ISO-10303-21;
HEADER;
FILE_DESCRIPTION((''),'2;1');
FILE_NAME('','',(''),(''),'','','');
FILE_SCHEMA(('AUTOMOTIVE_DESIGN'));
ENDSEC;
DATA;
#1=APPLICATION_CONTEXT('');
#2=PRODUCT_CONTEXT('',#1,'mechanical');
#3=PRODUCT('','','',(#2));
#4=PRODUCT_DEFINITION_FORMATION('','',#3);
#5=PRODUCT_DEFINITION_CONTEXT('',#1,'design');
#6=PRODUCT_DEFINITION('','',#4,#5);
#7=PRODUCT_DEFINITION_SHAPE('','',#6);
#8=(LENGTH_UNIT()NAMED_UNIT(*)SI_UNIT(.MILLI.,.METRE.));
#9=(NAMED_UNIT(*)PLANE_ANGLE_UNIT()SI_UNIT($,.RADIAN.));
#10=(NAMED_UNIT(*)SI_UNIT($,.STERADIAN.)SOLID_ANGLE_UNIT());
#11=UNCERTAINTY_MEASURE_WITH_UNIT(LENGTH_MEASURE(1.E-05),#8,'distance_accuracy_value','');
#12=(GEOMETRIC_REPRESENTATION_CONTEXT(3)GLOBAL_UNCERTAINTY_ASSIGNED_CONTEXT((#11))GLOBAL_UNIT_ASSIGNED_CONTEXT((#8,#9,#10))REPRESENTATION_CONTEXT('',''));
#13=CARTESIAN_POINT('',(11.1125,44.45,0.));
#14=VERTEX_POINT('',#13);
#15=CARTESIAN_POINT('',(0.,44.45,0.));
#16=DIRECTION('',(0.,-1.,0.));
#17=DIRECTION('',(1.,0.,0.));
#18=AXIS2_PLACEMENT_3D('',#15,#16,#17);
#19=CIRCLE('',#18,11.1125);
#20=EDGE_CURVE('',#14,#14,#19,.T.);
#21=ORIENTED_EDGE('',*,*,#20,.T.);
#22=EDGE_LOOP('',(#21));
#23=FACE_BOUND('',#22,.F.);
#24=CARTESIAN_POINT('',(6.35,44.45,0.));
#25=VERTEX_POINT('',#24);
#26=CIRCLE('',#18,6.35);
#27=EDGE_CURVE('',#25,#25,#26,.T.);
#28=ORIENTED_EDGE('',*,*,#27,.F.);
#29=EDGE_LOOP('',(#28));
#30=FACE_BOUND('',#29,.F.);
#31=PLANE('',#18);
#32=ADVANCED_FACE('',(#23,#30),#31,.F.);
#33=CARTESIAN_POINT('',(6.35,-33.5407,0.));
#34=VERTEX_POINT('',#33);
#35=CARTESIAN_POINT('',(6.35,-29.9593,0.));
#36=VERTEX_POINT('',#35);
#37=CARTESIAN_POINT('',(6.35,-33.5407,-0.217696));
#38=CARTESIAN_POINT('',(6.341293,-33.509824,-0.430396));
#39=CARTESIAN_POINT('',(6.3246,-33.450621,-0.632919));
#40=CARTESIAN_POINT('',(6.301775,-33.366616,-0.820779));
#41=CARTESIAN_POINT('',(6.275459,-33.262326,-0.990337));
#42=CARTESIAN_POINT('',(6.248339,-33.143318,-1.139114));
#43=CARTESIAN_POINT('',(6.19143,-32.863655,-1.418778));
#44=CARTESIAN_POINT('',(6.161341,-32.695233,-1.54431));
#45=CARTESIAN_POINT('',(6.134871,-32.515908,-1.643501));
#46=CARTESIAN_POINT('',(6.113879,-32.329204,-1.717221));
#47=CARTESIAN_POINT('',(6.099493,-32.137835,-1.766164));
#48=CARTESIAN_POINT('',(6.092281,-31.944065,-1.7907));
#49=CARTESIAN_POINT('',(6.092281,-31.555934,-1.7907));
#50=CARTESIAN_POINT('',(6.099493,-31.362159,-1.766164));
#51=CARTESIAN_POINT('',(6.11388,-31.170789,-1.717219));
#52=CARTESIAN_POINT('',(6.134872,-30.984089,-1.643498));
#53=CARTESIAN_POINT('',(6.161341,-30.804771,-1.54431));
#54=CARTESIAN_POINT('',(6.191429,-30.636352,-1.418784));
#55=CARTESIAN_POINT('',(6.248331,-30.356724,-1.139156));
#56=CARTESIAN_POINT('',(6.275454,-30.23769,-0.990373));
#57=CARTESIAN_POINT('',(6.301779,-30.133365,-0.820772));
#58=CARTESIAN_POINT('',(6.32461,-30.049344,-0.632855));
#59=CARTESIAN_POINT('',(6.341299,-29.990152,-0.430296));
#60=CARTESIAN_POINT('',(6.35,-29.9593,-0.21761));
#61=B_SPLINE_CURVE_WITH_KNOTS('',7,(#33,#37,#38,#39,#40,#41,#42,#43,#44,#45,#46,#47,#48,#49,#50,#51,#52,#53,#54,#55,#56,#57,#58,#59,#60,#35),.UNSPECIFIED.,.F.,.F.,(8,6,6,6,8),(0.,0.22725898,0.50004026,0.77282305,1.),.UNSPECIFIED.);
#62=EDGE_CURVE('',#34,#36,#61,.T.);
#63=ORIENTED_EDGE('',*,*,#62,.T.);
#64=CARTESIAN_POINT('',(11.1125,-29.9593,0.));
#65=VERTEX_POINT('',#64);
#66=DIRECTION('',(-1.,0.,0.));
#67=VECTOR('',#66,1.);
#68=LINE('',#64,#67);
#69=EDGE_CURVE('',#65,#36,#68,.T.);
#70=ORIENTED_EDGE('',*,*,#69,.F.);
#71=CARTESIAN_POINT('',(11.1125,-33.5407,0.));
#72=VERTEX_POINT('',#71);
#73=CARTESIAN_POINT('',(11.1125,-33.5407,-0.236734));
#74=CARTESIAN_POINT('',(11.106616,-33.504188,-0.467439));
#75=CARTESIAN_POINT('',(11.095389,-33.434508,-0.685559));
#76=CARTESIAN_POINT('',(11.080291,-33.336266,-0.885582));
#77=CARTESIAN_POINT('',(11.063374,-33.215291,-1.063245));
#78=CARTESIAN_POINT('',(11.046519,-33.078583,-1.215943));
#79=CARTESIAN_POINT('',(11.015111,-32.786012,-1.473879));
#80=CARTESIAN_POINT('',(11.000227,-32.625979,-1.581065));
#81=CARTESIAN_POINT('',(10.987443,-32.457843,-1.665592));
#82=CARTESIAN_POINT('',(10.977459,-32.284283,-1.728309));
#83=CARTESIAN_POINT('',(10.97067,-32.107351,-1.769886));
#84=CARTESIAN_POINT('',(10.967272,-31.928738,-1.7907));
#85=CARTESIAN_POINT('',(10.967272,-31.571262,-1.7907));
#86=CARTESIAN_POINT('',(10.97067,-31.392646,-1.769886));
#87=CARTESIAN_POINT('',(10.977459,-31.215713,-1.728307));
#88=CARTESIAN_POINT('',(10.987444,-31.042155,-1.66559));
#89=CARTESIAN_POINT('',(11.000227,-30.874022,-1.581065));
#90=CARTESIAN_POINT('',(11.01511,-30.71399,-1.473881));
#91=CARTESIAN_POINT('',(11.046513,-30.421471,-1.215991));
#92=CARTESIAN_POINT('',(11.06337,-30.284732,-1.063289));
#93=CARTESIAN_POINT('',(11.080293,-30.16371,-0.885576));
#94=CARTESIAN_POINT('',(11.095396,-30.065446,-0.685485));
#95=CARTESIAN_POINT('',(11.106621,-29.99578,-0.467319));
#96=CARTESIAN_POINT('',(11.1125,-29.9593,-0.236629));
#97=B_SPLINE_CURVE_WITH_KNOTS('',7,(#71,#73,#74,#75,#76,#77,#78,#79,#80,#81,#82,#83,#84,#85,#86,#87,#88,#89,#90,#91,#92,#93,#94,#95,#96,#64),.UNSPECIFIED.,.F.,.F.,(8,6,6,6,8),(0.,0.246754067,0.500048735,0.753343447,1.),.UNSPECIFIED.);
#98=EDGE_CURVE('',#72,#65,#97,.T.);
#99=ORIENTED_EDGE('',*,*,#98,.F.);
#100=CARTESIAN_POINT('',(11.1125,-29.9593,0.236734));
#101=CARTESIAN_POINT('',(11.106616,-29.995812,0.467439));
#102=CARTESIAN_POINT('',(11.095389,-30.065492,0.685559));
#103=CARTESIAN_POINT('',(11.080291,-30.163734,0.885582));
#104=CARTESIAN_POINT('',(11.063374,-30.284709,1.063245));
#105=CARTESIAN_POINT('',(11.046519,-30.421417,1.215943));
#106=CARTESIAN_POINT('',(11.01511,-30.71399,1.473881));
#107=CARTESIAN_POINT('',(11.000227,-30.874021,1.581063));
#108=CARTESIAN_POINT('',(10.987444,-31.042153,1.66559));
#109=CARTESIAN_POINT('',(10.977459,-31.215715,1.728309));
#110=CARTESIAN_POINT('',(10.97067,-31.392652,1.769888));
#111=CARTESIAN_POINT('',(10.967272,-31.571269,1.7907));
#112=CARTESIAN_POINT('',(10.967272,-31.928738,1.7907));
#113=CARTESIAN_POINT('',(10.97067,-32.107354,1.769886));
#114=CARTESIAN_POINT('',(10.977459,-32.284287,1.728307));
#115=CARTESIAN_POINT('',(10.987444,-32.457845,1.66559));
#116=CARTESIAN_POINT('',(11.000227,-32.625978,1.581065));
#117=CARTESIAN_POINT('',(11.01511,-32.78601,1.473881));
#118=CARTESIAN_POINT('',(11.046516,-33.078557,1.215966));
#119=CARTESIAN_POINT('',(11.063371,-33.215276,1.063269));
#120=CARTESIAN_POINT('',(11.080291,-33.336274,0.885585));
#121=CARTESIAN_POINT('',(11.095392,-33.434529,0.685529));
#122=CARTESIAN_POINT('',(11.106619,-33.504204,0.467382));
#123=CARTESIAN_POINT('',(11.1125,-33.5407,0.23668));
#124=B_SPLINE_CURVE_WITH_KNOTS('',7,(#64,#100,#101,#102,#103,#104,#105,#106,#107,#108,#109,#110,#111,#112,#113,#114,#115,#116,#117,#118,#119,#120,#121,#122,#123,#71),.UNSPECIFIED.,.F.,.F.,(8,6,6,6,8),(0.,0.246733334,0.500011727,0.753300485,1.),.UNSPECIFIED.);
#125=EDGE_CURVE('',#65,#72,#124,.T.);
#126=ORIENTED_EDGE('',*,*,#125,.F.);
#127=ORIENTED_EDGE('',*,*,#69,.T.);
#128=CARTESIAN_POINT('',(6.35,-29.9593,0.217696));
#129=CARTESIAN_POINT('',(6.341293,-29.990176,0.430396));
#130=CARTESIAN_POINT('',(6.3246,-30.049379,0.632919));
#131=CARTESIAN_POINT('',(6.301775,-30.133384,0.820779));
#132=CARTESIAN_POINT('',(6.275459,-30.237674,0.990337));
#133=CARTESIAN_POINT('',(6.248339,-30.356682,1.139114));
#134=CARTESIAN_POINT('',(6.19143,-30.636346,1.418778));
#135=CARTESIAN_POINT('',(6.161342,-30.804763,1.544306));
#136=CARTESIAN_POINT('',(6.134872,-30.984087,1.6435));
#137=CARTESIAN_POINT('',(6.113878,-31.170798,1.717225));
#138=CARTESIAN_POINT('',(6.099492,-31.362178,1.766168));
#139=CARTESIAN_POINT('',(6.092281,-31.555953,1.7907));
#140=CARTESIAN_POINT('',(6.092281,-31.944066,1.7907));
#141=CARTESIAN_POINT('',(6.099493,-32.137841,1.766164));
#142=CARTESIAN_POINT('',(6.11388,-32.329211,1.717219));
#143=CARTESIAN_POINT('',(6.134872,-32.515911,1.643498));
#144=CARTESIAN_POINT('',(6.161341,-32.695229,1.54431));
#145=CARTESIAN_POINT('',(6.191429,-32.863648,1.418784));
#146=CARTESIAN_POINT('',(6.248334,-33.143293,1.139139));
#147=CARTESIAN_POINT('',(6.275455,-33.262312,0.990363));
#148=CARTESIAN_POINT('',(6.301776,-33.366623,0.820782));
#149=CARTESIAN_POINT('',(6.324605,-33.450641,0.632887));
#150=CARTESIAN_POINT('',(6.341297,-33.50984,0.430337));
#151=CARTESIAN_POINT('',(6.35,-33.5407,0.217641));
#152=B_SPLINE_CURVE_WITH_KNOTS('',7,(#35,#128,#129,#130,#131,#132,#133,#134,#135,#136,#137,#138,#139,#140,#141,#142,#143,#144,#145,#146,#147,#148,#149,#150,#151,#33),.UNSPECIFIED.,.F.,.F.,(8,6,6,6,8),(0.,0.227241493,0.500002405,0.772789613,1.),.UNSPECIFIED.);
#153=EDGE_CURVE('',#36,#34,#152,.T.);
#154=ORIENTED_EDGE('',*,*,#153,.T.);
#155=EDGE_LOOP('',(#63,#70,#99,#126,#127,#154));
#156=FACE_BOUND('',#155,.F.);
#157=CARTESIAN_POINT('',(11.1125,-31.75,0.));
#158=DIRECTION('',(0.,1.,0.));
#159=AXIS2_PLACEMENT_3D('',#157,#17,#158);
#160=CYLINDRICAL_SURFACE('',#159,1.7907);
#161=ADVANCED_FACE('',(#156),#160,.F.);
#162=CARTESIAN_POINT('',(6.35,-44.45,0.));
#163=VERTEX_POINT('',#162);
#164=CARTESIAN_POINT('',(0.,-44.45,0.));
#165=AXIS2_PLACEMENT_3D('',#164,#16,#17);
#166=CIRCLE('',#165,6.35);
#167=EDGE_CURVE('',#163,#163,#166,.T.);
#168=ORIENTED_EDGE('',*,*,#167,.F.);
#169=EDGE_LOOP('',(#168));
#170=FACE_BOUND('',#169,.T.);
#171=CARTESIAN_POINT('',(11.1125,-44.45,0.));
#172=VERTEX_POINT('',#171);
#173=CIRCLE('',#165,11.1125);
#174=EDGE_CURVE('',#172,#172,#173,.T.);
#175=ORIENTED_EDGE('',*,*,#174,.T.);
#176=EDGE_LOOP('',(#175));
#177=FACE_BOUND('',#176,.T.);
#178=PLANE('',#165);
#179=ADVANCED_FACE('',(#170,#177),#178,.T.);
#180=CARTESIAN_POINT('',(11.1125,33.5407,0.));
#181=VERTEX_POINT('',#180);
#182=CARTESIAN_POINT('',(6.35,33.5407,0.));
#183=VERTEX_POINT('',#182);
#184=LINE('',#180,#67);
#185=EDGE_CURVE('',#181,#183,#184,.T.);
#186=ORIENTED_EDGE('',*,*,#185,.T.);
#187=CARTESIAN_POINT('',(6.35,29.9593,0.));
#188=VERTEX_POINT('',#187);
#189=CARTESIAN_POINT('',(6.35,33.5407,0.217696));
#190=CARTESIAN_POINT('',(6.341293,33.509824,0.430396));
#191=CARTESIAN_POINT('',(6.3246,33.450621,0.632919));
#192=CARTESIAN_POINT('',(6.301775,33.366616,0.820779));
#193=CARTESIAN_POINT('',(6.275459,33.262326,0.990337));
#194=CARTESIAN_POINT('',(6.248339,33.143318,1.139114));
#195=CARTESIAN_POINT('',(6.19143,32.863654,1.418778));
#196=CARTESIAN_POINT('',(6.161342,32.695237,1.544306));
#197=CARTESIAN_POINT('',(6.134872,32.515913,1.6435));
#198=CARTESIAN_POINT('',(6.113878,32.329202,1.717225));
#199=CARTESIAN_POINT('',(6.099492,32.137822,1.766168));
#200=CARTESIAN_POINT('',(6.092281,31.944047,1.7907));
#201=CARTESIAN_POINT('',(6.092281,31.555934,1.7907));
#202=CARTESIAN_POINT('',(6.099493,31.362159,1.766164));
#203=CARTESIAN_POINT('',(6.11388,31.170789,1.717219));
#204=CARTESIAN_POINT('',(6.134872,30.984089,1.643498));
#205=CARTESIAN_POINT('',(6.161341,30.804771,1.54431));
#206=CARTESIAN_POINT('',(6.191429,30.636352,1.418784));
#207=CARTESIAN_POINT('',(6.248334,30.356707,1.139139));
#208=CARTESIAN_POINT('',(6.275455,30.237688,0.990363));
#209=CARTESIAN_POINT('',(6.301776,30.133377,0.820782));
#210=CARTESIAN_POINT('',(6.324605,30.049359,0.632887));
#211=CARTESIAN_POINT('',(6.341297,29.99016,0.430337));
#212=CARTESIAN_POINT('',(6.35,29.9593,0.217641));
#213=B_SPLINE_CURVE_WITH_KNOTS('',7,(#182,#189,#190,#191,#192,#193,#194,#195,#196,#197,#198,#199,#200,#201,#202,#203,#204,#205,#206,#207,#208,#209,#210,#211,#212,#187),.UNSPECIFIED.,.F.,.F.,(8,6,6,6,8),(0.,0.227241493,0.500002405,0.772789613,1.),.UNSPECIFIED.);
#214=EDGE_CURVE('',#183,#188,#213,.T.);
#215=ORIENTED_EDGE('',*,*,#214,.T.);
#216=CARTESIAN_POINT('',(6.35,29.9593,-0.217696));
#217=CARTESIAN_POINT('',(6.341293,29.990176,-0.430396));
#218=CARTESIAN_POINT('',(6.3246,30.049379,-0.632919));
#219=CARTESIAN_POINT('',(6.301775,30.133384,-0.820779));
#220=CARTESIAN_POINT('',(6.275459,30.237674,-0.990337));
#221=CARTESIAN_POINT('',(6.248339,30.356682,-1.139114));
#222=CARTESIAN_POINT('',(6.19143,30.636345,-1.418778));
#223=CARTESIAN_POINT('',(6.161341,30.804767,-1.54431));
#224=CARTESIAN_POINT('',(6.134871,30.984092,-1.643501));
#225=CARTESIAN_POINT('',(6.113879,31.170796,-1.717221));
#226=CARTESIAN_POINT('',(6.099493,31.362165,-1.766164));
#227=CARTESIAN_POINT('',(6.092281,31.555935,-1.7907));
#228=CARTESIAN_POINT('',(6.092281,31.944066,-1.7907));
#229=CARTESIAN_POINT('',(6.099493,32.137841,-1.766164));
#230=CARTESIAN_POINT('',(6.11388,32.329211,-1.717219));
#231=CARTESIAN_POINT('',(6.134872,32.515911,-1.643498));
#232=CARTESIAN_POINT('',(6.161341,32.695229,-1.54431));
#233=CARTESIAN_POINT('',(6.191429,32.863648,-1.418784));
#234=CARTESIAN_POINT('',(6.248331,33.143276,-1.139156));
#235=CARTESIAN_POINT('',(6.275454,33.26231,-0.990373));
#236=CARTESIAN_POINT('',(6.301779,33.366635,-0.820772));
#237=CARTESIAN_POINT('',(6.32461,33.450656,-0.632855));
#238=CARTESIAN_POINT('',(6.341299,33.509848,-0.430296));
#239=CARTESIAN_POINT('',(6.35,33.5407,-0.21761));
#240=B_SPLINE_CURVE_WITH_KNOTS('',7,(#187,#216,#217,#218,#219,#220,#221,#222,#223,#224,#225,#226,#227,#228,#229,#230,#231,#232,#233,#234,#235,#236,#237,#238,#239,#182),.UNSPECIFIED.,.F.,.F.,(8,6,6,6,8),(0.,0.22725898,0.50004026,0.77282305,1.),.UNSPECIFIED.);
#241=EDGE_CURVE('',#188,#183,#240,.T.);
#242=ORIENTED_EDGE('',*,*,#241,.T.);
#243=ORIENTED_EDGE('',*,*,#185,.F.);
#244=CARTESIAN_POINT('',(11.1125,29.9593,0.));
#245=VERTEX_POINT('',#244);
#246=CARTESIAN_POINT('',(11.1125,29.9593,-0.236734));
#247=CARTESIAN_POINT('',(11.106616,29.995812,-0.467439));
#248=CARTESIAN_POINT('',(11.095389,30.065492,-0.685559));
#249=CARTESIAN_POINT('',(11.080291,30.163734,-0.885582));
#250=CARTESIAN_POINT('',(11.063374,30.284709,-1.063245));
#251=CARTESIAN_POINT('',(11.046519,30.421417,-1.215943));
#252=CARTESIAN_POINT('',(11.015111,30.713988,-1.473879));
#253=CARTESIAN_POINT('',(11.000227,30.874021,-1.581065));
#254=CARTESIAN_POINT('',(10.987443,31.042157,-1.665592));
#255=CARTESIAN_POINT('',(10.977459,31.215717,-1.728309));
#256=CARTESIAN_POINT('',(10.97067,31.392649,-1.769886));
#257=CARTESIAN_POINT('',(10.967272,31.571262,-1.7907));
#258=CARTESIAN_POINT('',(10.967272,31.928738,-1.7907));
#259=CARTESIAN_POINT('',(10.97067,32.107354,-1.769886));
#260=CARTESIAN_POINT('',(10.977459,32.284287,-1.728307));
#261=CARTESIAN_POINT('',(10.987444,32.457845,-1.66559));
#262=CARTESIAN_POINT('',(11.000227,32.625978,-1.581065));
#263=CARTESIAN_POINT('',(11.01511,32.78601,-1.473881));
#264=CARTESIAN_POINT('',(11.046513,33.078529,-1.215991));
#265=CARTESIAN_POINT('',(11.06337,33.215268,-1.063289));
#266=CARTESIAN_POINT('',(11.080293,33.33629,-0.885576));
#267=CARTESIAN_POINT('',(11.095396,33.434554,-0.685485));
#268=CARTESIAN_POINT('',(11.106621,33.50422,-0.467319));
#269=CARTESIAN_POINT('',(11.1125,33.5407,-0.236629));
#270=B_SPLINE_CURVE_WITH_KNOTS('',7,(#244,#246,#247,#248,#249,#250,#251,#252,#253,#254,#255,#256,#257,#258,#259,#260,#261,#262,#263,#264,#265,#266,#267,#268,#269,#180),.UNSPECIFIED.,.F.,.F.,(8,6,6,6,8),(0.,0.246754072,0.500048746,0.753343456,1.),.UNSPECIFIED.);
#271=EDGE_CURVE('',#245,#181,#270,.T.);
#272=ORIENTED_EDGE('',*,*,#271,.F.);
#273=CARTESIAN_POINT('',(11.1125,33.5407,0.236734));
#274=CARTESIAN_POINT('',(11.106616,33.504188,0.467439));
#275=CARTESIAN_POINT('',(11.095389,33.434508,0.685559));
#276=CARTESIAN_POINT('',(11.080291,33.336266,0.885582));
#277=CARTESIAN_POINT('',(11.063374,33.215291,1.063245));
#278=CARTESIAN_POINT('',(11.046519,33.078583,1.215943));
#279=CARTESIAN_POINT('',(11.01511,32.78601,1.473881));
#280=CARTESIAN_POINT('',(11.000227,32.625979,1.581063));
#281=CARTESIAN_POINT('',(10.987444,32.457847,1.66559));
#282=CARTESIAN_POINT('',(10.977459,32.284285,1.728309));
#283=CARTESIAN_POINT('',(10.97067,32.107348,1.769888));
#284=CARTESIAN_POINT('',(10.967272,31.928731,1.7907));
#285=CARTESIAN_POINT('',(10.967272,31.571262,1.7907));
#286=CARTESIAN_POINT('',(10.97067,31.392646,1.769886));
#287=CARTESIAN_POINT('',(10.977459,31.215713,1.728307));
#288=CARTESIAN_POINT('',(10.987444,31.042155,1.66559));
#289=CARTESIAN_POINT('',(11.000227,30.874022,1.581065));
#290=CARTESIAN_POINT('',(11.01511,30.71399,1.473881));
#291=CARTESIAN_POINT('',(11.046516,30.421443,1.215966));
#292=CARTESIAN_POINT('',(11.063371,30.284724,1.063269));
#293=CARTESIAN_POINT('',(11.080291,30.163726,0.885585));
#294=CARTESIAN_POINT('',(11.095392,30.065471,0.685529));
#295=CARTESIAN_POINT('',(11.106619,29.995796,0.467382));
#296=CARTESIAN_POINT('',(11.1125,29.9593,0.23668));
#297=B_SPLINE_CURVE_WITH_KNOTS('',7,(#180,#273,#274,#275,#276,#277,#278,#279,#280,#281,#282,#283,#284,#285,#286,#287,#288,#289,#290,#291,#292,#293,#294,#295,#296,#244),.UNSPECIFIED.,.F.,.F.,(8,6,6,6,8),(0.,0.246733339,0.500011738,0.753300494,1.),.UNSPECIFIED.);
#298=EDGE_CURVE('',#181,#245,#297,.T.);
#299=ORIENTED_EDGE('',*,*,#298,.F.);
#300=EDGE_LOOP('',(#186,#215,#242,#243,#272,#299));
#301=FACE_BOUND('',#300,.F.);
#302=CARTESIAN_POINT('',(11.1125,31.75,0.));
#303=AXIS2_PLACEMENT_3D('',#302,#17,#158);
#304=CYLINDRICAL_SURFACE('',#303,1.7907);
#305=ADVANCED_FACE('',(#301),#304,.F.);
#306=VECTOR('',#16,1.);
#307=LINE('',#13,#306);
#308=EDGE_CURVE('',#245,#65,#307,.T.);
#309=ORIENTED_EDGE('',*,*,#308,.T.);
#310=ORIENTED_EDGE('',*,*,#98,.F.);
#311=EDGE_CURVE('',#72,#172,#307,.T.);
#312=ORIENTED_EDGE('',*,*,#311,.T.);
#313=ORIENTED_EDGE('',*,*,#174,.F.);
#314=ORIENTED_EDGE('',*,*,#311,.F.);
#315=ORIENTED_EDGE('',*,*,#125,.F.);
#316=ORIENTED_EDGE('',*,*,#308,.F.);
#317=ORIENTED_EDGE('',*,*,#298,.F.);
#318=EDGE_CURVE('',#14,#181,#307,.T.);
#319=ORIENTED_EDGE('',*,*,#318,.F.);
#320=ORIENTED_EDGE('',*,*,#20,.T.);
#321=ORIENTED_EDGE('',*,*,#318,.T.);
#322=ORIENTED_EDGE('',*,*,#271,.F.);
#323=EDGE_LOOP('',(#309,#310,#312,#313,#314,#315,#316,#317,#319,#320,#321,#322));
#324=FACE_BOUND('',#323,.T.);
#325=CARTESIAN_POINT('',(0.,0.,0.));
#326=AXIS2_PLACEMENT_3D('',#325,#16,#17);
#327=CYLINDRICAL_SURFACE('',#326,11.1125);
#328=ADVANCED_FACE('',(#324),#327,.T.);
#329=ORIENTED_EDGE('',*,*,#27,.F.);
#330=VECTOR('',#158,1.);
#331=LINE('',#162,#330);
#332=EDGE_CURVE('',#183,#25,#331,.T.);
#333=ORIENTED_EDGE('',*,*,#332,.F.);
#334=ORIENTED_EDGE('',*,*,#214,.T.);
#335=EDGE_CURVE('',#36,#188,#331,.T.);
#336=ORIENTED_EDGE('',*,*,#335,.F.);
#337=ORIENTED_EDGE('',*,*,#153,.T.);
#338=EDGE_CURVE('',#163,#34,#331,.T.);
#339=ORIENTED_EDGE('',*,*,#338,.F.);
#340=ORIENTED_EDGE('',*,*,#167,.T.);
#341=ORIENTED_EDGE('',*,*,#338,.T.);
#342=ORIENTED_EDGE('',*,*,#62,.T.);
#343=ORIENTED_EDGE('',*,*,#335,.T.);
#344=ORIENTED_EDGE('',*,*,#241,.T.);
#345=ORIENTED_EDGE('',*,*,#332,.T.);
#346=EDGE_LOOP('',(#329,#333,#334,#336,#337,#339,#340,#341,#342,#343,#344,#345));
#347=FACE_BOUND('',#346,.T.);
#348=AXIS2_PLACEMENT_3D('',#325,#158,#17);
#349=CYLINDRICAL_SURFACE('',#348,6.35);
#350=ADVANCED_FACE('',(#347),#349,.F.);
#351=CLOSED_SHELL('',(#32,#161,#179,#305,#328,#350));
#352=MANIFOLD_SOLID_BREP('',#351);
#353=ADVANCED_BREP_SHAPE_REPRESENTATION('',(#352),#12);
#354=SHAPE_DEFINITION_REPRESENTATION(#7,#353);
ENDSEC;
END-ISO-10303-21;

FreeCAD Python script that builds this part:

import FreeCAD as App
import Part
import Sketcher

V = App.Vector
Q = App.Units.Quantity

doc = App.newDocument("Part")
body = doc.addObject("PartDesign::Body", "Body")

# Sketch on XZ plane
sketch1 = doc.addObject("Sketcher::SketchObject", "Sketch")
body.addObject(sketch1)
sketch1.AttachmentSupport = (doc.XZ_Plane, [""])
sketch1.MapMode = "FlatFace"
sketch1.addGeometry([
    Part.Circle(V(0, 0, 0), V(0, 0, 1), 11),
    Part.Circle(V(0, 0, 0), V(0, 0, 1), 6),
], False)
sketch1.addConstraint([
    Sketcher.Constraint("Coincident", 0, 3, -1, 1),
    Sketcher.Constraint("Coincident", 1, 3, -1, 1),
    Sketcher.Constraint("Diameter", 1, Q("0.5 in")),
    Sketcher.Constraint("Diameter", 0, Q("0.875 in")),
])
pad1 = doc.addObject("PartDesign::Pad", "Pad")
body.addObject(pad1)
pad1.Profile = sketch1
pad1.Length = Q("3.5 in")
pad1.Midplane = True

# Sketch on YZ plane
sketch2 = doc.addObject("Sketcher::SketchObject", "Sketch001")
body.addObject(sketch2)
sketch2.AttachmentSupport = (doc.YZ_Plane, [""])
sketch2.MapMode = "FlatFace"
sketch2.AttachmentOffset = App.Placement(V(0, 0, 0.4375 * 25.4), App.Rotation())
sketch2.addGeometry([
    Part.Circle(V(-31.8, 0, 0), V(0, 0, 1), 1.8),
    Part.Circle(V(31.8, 0, 0), V(0, 0, 1), 1.8),
], False)
sketch2.addConstraint([
    Sketcher.Constraint("Equal", 0, 1),
    Sketcher.Constraint("Symmetric", 0, 3, 1, 3, -1, 1),
    Sketcher.Constraint("PointOnObject", 0, 3, -1),
    Sketcher.Constraint("Diameter", 0, Q("0.141 in")),
    Sketcher.Constraint("DistanceX", 0, 3, 1, 3, Q("2.5 in")),
])
pocket1 = doc.addObject("PartDesign::Pocket", "Pocket")
body.addObject(pocket1)
pocket1.Profile = sketch2
pocket1.Length = 6.020219

doc.recompute()
